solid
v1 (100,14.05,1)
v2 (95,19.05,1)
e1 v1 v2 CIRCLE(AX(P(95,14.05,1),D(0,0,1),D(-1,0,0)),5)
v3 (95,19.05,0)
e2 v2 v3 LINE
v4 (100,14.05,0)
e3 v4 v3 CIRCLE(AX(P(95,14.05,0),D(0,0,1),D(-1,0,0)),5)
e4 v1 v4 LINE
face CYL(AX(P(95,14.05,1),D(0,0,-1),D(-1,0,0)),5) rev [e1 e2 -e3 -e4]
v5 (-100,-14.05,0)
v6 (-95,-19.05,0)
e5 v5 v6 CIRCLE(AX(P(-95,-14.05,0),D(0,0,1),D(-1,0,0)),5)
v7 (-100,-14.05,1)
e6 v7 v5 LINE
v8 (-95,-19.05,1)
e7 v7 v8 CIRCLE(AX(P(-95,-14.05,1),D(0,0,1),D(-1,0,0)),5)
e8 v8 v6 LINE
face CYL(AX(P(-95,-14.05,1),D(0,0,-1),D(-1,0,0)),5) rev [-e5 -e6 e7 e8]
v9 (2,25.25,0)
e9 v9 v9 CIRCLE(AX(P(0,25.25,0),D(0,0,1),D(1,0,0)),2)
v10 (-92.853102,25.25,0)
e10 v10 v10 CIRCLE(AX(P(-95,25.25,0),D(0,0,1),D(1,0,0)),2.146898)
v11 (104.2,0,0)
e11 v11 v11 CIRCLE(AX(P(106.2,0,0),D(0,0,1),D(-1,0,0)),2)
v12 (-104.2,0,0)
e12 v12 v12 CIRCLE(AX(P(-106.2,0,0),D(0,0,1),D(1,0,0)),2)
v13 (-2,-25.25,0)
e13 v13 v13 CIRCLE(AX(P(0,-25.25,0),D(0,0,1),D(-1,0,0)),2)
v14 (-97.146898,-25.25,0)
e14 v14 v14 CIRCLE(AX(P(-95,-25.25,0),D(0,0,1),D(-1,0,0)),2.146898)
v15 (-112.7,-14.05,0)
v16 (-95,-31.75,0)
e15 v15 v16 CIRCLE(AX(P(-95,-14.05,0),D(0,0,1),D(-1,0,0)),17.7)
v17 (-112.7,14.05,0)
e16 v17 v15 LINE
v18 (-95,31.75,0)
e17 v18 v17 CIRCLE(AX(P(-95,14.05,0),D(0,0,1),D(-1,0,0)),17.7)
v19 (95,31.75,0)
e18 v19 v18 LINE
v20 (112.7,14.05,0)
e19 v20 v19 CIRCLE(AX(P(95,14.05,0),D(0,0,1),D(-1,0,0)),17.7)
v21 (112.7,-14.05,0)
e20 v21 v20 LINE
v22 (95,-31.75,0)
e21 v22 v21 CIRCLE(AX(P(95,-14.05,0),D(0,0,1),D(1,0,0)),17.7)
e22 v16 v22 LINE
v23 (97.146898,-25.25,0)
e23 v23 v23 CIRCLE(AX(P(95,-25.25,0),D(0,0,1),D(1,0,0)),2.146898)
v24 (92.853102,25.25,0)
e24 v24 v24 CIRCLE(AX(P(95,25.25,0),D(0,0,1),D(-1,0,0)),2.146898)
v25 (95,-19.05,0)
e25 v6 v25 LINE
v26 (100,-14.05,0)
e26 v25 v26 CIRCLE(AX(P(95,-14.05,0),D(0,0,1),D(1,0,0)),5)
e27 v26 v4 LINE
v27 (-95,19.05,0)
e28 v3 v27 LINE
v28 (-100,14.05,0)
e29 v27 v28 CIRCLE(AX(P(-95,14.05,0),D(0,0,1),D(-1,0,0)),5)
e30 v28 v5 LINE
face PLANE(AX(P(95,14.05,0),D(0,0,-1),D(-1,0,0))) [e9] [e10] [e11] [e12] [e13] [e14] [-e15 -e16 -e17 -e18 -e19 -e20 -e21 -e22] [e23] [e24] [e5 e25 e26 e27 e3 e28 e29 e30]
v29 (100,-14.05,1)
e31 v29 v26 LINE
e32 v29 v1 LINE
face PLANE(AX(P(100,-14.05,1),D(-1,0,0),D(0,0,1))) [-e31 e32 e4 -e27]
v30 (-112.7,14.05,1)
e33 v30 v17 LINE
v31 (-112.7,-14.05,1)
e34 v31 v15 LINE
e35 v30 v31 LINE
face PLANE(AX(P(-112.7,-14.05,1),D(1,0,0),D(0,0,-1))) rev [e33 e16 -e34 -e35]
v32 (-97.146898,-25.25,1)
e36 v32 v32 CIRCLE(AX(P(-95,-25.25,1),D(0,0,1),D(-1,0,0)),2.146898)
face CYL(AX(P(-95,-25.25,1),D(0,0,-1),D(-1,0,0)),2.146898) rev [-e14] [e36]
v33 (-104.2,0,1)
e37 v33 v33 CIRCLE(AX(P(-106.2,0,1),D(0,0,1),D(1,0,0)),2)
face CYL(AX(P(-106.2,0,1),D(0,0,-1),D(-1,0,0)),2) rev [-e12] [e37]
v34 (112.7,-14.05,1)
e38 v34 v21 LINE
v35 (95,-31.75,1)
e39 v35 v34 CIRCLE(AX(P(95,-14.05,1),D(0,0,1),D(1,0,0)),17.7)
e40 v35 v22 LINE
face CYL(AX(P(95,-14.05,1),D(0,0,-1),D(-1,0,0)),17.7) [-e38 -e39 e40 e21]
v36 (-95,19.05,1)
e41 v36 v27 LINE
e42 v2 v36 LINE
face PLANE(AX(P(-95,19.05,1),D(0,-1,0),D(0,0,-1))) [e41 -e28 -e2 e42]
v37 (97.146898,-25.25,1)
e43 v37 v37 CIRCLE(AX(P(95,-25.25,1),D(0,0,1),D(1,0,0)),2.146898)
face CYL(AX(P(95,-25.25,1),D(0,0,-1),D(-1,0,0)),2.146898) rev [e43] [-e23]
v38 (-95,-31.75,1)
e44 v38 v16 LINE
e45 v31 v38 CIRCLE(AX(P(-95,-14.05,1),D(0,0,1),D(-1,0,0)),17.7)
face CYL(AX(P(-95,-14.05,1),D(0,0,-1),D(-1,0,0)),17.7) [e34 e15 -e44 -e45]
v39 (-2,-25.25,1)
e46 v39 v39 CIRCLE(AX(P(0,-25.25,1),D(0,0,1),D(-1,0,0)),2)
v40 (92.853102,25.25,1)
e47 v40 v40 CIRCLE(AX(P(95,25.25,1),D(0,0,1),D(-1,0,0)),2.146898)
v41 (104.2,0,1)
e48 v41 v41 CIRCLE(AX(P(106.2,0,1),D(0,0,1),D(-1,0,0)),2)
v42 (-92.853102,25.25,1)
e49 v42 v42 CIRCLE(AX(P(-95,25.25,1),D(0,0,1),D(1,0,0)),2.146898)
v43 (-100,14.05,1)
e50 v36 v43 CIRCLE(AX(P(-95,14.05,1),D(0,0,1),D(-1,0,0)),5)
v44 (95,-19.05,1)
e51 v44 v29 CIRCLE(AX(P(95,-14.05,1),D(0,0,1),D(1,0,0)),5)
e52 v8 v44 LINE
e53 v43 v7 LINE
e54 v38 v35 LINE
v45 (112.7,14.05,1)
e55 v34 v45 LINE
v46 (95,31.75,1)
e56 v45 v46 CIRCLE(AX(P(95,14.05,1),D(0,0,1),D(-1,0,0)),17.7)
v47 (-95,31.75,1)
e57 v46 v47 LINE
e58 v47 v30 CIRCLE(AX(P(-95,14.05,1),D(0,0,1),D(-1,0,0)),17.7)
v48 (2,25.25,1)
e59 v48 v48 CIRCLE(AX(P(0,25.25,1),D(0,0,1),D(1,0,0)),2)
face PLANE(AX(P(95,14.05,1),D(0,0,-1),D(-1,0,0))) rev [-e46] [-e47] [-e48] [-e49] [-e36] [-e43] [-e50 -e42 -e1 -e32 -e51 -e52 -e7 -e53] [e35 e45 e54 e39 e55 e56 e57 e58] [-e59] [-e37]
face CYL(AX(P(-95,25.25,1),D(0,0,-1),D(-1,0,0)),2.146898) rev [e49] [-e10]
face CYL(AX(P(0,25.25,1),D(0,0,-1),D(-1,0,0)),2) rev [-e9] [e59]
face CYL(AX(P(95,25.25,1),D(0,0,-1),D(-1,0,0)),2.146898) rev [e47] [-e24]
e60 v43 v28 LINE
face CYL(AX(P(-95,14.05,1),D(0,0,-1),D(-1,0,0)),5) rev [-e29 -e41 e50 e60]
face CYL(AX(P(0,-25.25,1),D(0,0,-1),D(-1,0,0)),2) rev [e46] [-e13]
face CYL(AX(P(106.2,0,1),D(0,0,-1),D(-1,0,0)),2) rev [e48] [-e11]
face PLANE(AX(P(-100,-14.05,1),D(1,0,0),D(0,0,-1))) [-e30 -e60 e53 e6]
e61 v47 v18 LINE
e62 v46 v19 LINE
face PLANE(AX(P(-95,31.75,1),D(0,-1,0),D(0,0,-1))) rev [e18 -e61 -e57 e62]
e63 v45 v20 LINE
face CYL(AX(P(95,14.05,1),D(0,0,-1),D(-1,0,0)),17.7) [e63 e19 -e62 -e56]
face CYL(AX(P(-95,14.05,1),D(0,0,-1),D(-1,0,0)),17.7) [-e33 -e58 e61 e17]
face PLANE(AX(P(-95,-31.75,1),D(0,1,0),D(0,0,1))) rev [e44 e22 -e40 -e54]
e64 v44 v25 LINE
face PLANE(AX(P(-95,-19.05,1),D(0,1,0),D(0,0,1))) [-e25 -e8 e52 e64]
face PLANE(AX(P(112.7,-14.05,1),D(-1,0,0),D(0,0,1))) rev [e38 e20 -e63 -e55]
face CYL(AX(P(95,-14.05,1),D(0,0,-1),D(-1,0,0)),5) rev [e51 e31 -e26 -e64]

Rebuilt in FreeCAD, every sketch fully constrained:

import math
import FreeCAD as App
import Part
import Sketcher

V = App.Vector
Q = App.Units.Quantity

doc = App.newDocument("Part")
body = doc.addObject("PartDesign::Body", "Body")

sketch1 = doc.addObject("Sketcher::SketchObject", "Sketch")
body.addObject(sketch1)
sketch1.AttachmentSupport = (doc.XY_Plane, [""])
sketch1.MapMode = "FlatFace"
sketch1.addGeometry(Part.LineSegment(V(-95, -31.8, 0), V(95, -31.8, 0)), False)
sketch1.addGeometry(Part.ArcOfCircle(Part.Circle(V(95, -14.1, 0), V(0, 0, 1), 17.7), math.radians(-90), math.radians(0)), False)
sketch1.addGeometry(Part.LineSegment(V(112.7, -14.1, 0), V(112.7, 14.1, 0)), False)
sketch1.addGeometry(Part.ArcOfCircle(Part.Circle(V(95, 14.1, 0), V(0, 0, 1), 17.7), math.radians(0), math.radians(90)), False)
sketch1.addGeometry(Part.LineSegment(V(95, 31.8, 0), V(-95, 31.8, 0)), False)
sketch1.addGeometry(Part.ArcOfCircle(Part.Circle(V(-95, 14.1, 0), V(0, 0, 1), 17.7), math.radians(90), math.radians(180)), False)
sketch1.addGeometry(Part.LineSegment(V(-112.7, 14.1, 0), V(-112.7, -14.1, 0)), False)
sketch1.addGeometry(Part.ArcOfCircle(Part.Circle(V(-95, -14.1, 0), V(0, 0, 1), 17.7), math.radians(180), math.radians(270)), False)
sketch1.addGeometry(Part.Circle(V(-95, -25.2, 0), V(0, 0, 1), 2.1), False)
sketch1.addGeometry(Part.Circle(V(0, -25.2, 0), V(0, 0, 1), 2), False)
sketch1.addGeometry(Part.Circle(V(95, -25.2, 0), V(0, 0, 1), 2.1), False)
sketch1.addGeometry(Part.Circle(V(-106.2, 0, 0), V(0, 0, 1), 2), False)
sketch1.addGeometry(Part.LineSegment(V(95, -19.1, 0), V(-95, -19.1, 0)), False)
sketch1.addGeometry(Part.ArcOfCircle(Part.Circle(V(-95, -14.1, 0), V(0, 0, 1), 5), math.radians(180), math.radians(270)), False)
sketch1.addGeometry(Part.LineSegment(V(-100, -14.1, 0), V(-100, 14.1, 0)), False)
sketch1.addGeometry(Part.ArcOfCircle(Part.Circle(V(-95, 14.1, 0), V(0, 0, 1), 5), math.radians(90), math.radians(180)), False)
sketch1.addGeometry(Part.LineSegment(V(-95, 19.1, 0), V(95, 19.1, 0)), False)
sketch1.addGeometry(Part.ArcOfCircle(Part.Circle(V(95, 14.1, 0), V(0, 0, 1), 5), math.radians(0), math.radians(90)), False)
sketch1.addGeometry(Part.LineSegment(V(100, 14.1, 0), V(100, -14.1, 0)), False)
sketch1.addGeometry(Part.ArcOfCircle(Part.Circle(V(95, -14.1, 0), V(0, 0, 1), 5), math.radians(-90), math.radians(0)), False)
sketch1.addGeometry(Part.Circle(V(-95, 25.2, 0), V(0, 0, 1), 2.1), False)
sketch1.addGeometry(Part.Circle(V(0, 25.2, 0), V(0, 0, 1), 2), False)
sketch1.addGeometry(Part.Circle(V(106.2, 0, 0), V(0, 0, 1), 2), False)
sketch1.addGeometry(Part.Circle(V(95, 25.2, 0), V(0, 0, 1), 2.1), False)
sketch1.addConstraint(Sketcher.Constraint("Tangent", 0, 2, 1, 1))
sketch1.addConstraint(Sketcher.Constraint("Tangent", 1, 2, 2, 1))
sketch1.addConstraint(Sketcher.Constraint("Tangent", 2, 2, 3, 1))
sketch1.addConstraint(Sketcher.Constraint("Tangent", 3, 2, 4, 1))
sketch1.addConstraint(Sketcher.Constraint("Tangent", 4, 2, 5, 1))
sketch1.addConstraint(Sketcher.Constraint("Tangent", 5, 2, 6, 1))
sketch1.addConstraint(Sketcher.Constraint("Tangent", 6, 2, 7, 1))
sketch1.addConstraint(Sketcher.Constraint("Tangent", 7, 2, 0, 1))
sketch1.addConstraint(Sketcher.Constraint("Tangent", 12, 2, 13, 2))
sketch1.addConstraint(Sketcher.Constraint("Tangent", 13, 1, 14, 1))
sketch1.addConstraint(Sketcher.Constraint("Tangent", 14, 2, 15, 2))
sketch1.addConstraint(Sketcher.Constraint("Tangent", 15, 1, 16, 1))
sketch1.addConstraint(Sketcher.Constraint("Tangent", 16, 2, 17, 2))
sketch1.addConstraint(Sketcher.Constraint("Tangent", 17, 1, 18, 1))
sketch1.addConstraint(Sketcher.Constraint("Tangent", 18, 2, 19, 2))
sketch1.addConstraint(Sketcher.Constraint("Tangent", 19, 1, 12, 1))
sketch1.addConstraint(Sketcher.Constraint("Horizontal", 0))
sketch1.addConstraint(Sketcher.Constraint("Vertical", 2))
sketch1.addConstraint(Sketcher.Constraint("Horizontal", 4))
sketch1.addConstraint(Sketcher.Constraint("Vertical", 6))
sketch1.addConstraint(Sketcher.Constraint("Horizontal", 12))
sketch1.addConstraint(Sketcher.Constraint("Vertical", 14))
sketch1.addConstraint(Sketcher.Constraint("Horizontal", 16))
sketch1.addConstraint(Sketcher.Constraint("Vertical", 18))
sketch1.addConstraint(Sketcher.Constraint("Coincident", 13, 3, 7, 3))
sketch1.addConstraint(Sketcher.Constraint("Coincident", 15, 3, 5, 3))
sketch1.addConstraint(Sketcher.Constraint("Coincident", 17, 3, 3, 3))
sketch1.addConstraint(Sketcher.Constraint("Equal", 1, 3))
sketch1.addConstraint(Sketcher.Constraint("Equal", 3, 5))
sketch1.addConstraint(Sketcher.Constraint("Equal", 5, 7))
sketch1.addConstraint(Sketcher.Constraint("Equal", 8, 10))
sketch1.addConstraint(Sketcher.Constraint("Equal", 9, 11))
sketch1.addConstraint(Sketcher.Constraint("Equal", 17, 19))
sketch1.addConstraint(Sketcher.Constraint("Equal", 10, 20))
sketch1.addConstraint(Sketcher.Constraint("Equal", 11, 21))
sketch1.addConstraint(Sketcher.Constraint("Equal", 21, 22))
sketch1.addConstraint(Sketcher.Constraint("Equal", 20, 23))
sketch1.addConstraint(Sketcher.Constraint("Symmetric", 1, 3, 5, 3, -1, 1))
sketch1.addConstraint(Sketcher.Constraint("Symmetric", 10, 3, 20, 3, -1, 1))
sketch1.addConstraint(Sketcher.Constraint("Symmetric", 9, 3, 21, 3, -1, 1))
sketch1.addConstraint(Sketcher.Constraint("Symmetric", 11, 3, 22, 3, -1, 1))
sketch1.addConstraint(Sketcher.Constraint("Symmetric", 8, 3, 23, 3, -1, 1))
sketch1.addConstraint(Sketcher.Constraint("Symmetric", 8, 3, 10, 3, -2))
sketch1.addConstraint(Sketcher.Constraint("PointOnObject", 9, 3, -2))
sketch1.addConstraint(Sketcher.Constraint("PointOnObject", 11, 3, -1))
sketch1.addConstraint(Sketcher.Constraint("Horizontal", 8, 3, 9, 3))
sketch1.addConstraint(Sketcher.Constraint("Vertical", 7, 3, 8, 3))
sketch1.addConstraint(Sketcher.Constraint("Diameter", 9, Q("4 mm")))
sketch1.addConstraint(Sketcher.Constraint("Radius", 13, Q("5 mm")))
sketch1.addConstraint(Sketcher.Constraint("Radius", 1, Q("17.7 mm")))
sketch1.addConstraint(Sketcher.Constraint("DistanceX", 0, 1, 0, 2, Q("190 mm")))
sketch1.addConstraint(Sketcher.Constraint("DistanceY", 2, 1, 2, 2, Q("28.1 mm")))
sketch1.addConstraint(Sketcher.Constraint("DistanceX", 11, 3, -1, 1, Q("106.2 mm")))
sketch1.addConstraint(Sketcher.Constraint("DistanceY", 8, 3, 7, 3, Q("11.2 mm")))
sketch1.addConstraint(Sketcher.Constraint("Diameter", 8, Q("4.293796 mm")))
pad1 = doc.addObject("PartDesign::Pad", "Pad")
body.addObject(pad1)
pad1.Profile = sketch1
pad1.Length = 1

doc.recompute()
